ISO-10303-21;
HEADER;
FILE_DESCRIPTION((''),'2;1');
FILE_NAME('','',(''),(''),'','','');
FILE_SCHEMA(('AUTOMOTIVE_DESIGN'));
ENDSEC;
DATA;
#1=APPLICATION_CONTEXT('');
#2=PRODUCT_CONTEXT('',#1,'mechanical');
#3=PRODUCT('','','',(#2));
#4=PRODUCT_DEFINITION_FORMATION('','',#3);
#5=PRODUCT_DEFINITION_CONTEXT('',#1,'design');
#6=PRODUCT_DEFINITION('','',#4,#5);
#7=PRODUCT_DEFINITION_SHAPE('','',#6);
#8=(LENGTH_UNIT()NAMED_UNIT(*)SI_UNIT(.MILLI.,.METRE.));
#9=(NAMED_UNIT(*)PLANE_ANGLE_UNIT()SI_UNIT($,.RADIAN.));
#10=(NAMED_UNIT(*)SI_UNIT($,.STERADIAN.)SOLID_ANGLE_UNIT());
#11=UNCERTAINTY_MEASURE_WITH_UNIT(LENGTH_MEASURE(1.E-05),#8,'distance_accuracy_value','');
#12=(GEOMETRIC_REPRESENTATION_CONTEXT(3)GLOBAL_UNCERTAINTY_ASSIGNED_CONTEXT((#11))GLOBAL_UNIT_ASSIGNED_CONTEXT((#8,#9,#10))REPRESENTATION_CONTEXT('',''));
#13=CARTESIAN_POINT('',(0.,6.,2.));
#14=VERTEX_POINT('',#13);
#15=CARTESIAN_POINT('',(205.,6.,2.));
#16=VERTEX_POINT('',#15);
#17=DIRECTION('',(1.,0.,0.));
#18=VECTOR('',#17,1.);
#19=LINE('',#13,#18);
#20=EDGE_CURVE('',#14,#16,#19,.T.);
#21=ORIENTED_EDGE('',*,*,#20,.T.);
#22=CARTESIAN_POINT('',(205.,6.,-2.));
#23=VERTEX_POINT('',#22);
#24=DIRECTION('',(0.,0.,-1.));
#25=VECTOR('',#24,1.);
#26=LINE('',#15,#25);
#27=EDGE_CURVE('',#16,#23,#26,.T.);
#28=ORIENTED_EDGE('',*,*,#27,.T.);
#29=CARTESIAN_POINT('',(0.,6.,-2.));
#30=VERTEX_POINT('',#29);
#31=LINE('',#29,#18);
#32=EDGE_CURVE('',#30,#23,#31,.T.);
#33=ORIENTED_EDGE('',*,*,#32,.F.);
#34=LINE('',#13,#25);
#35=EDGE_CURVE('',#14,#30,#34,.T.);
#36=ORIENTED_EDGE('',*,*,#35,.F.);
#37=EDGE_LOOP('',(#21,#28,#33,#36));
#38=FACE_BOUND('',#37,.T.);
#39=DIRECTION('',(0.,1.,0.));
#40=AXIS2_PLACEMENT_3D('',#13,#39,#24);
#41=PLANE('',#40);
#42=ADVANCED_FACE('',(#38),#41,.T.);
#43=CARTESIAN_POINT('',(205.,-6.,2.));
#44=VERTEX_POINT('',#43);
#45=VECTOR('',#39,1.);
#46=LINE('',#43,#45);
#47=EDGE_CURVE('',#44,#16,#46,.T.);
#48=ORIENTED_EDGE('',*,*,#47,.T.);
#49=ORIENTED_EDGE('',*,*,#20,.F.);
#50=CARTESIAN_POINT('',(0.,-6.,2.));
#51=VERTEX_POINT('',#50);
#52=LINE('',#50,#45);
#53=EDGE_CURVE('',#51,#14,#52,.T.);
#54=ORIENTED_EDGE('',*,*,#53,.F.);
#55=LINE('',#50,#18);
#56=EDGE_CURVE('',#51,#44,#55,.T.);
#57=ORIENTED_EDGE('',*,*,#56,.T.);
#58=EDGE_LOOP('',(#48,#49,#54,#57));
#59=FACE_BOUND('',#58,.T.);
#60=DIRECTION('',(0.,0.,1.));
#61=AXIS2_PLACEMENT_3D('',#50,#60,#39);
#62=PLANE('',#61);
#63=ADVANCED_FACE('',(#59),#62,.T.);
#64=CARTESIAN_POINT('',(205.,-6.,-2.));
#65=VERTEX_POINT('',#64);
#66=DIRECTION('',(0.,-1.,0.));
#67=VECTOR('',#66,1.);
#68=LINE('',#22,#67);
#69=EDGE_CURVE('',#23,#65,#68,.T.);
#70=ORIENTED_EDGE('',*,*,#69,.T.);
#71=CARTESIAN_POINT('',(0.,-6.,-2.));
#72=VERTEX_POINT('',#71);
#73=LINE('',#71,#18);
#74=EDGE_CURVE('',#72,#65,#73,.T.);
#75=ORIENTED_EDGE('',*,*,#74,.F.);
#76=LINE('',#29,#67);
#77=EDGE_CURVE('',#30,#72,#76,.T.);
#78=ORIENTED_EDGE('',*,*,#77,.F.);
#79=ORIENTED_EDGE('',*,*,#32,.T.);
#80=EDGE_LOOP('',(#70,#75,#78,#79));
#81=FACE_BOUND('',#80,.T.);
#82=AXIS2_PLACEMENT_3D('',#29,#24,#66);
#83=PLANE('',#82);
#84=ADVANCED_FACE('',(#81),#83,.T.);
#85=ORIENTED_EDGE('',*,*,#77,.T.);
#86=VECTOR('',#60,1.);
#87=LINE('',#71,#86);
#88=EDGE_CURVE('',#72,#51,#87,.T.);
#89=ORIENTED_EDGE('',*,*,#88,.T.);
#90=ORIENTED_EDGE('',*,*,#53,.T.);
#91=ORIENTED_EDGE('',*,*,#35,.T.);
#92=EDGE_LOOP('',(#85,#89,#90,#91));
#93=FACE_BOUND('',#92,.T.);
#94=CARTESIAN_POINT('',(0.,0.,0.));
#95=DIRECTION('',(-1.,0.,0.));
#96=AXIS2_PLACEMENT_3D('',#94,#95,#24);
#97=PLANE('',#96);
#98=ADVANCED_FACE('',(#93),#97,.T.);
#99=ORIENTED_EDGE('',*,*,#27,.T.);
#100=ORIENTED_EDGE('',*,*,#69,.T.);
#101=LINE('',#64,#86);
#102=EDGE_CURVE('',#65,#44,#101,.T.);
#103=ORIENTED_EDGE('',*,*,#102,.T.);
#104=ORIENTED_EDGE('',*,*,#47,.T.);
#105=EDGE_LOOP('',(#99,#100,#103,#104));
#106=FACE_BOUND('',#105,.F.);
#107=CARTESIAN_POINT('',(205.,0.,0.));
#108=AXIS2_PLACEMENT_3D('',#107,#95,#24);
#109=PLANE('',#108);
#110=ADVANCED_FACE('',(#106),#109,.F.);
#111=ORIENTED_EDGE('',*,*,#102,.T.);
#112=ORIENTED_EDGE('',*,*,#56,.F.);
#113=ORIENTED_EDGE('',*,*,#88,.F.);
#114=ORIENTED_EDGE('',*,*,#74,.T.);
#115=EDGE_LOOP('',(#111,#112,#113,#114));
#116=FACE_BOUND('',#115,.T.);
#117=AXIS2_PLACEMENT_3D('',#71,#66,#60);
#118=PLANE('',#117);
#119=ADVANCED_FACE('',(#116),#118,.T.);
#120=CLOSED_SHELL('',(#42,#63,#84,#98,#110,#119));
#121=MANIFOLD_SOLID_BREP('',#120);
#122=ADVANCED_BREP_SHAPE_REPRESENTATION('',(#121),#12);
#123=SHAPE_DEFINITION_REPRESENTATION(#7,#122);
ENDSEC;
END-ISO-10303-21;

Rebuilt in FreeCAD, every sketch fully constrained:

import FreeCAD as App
import Part
import Sketcher

V = App.Vector
Q = App.Units.Quantity

doc = App.newDocument("Part")
body = doc.addObject("PartDesign::Body", "Body")

# Sketch on YZ plane
sketch1 = body.newObject("Sketcher::SketchObject", "Sketch")
sketch1.AttachmentSupport = (doc.getObject("YZ_Plane"), [""])
sketch1.MapMode = "FlatFace"
sketch1.addGeometry([
    Part.LineSegment(V(-6, -2, 0), V(6, -2, 0)),
    Part.LineSegment(V(6, -2, 0), V(6, 2, 0)),
    Part.LineSegment(V(6, 2, 0), V(-6, 2, 0)),
    Part.LineSegment(V(-6, 2, 0), V(-6, -2, 0)),
], False)
sketch1.addConstraint([
    Sketcher.Constraint("Coincident", 0, 2, 1, 1),
    Sketcher.Constraint("Coincident", 1, 2, 2, 1),
    Sketcher.Constraint("Coincident", 2, 2, 3, 1),
    Sketcher.Constraint("Coincident", 3, 2, 0, 1),
    Sketcher.Constraint("Horizontal", 0),
    Sketcher.Constraint("Vertical", 1),
    Sketcher.Constraint("Horizontal", 2),
    Sketcher.Constraint("Vertical", 3),
    Sketcher.Constraint("Symmetric", 0, 2, 2, 2, -1, 1),
    Sketcher.Constraint("DistanceX", -1, 1, 0, 2, Q("6 mm")),
    Sketcher.Constraint("DistanceY", 1, 1, 1, 2, Q("4 mm")),
])
pad1 = body.newObject("PartDesign::Pad", "Pad")
pad1.Profile = sketch1
pad1.Length = 205

doc.recompute()
